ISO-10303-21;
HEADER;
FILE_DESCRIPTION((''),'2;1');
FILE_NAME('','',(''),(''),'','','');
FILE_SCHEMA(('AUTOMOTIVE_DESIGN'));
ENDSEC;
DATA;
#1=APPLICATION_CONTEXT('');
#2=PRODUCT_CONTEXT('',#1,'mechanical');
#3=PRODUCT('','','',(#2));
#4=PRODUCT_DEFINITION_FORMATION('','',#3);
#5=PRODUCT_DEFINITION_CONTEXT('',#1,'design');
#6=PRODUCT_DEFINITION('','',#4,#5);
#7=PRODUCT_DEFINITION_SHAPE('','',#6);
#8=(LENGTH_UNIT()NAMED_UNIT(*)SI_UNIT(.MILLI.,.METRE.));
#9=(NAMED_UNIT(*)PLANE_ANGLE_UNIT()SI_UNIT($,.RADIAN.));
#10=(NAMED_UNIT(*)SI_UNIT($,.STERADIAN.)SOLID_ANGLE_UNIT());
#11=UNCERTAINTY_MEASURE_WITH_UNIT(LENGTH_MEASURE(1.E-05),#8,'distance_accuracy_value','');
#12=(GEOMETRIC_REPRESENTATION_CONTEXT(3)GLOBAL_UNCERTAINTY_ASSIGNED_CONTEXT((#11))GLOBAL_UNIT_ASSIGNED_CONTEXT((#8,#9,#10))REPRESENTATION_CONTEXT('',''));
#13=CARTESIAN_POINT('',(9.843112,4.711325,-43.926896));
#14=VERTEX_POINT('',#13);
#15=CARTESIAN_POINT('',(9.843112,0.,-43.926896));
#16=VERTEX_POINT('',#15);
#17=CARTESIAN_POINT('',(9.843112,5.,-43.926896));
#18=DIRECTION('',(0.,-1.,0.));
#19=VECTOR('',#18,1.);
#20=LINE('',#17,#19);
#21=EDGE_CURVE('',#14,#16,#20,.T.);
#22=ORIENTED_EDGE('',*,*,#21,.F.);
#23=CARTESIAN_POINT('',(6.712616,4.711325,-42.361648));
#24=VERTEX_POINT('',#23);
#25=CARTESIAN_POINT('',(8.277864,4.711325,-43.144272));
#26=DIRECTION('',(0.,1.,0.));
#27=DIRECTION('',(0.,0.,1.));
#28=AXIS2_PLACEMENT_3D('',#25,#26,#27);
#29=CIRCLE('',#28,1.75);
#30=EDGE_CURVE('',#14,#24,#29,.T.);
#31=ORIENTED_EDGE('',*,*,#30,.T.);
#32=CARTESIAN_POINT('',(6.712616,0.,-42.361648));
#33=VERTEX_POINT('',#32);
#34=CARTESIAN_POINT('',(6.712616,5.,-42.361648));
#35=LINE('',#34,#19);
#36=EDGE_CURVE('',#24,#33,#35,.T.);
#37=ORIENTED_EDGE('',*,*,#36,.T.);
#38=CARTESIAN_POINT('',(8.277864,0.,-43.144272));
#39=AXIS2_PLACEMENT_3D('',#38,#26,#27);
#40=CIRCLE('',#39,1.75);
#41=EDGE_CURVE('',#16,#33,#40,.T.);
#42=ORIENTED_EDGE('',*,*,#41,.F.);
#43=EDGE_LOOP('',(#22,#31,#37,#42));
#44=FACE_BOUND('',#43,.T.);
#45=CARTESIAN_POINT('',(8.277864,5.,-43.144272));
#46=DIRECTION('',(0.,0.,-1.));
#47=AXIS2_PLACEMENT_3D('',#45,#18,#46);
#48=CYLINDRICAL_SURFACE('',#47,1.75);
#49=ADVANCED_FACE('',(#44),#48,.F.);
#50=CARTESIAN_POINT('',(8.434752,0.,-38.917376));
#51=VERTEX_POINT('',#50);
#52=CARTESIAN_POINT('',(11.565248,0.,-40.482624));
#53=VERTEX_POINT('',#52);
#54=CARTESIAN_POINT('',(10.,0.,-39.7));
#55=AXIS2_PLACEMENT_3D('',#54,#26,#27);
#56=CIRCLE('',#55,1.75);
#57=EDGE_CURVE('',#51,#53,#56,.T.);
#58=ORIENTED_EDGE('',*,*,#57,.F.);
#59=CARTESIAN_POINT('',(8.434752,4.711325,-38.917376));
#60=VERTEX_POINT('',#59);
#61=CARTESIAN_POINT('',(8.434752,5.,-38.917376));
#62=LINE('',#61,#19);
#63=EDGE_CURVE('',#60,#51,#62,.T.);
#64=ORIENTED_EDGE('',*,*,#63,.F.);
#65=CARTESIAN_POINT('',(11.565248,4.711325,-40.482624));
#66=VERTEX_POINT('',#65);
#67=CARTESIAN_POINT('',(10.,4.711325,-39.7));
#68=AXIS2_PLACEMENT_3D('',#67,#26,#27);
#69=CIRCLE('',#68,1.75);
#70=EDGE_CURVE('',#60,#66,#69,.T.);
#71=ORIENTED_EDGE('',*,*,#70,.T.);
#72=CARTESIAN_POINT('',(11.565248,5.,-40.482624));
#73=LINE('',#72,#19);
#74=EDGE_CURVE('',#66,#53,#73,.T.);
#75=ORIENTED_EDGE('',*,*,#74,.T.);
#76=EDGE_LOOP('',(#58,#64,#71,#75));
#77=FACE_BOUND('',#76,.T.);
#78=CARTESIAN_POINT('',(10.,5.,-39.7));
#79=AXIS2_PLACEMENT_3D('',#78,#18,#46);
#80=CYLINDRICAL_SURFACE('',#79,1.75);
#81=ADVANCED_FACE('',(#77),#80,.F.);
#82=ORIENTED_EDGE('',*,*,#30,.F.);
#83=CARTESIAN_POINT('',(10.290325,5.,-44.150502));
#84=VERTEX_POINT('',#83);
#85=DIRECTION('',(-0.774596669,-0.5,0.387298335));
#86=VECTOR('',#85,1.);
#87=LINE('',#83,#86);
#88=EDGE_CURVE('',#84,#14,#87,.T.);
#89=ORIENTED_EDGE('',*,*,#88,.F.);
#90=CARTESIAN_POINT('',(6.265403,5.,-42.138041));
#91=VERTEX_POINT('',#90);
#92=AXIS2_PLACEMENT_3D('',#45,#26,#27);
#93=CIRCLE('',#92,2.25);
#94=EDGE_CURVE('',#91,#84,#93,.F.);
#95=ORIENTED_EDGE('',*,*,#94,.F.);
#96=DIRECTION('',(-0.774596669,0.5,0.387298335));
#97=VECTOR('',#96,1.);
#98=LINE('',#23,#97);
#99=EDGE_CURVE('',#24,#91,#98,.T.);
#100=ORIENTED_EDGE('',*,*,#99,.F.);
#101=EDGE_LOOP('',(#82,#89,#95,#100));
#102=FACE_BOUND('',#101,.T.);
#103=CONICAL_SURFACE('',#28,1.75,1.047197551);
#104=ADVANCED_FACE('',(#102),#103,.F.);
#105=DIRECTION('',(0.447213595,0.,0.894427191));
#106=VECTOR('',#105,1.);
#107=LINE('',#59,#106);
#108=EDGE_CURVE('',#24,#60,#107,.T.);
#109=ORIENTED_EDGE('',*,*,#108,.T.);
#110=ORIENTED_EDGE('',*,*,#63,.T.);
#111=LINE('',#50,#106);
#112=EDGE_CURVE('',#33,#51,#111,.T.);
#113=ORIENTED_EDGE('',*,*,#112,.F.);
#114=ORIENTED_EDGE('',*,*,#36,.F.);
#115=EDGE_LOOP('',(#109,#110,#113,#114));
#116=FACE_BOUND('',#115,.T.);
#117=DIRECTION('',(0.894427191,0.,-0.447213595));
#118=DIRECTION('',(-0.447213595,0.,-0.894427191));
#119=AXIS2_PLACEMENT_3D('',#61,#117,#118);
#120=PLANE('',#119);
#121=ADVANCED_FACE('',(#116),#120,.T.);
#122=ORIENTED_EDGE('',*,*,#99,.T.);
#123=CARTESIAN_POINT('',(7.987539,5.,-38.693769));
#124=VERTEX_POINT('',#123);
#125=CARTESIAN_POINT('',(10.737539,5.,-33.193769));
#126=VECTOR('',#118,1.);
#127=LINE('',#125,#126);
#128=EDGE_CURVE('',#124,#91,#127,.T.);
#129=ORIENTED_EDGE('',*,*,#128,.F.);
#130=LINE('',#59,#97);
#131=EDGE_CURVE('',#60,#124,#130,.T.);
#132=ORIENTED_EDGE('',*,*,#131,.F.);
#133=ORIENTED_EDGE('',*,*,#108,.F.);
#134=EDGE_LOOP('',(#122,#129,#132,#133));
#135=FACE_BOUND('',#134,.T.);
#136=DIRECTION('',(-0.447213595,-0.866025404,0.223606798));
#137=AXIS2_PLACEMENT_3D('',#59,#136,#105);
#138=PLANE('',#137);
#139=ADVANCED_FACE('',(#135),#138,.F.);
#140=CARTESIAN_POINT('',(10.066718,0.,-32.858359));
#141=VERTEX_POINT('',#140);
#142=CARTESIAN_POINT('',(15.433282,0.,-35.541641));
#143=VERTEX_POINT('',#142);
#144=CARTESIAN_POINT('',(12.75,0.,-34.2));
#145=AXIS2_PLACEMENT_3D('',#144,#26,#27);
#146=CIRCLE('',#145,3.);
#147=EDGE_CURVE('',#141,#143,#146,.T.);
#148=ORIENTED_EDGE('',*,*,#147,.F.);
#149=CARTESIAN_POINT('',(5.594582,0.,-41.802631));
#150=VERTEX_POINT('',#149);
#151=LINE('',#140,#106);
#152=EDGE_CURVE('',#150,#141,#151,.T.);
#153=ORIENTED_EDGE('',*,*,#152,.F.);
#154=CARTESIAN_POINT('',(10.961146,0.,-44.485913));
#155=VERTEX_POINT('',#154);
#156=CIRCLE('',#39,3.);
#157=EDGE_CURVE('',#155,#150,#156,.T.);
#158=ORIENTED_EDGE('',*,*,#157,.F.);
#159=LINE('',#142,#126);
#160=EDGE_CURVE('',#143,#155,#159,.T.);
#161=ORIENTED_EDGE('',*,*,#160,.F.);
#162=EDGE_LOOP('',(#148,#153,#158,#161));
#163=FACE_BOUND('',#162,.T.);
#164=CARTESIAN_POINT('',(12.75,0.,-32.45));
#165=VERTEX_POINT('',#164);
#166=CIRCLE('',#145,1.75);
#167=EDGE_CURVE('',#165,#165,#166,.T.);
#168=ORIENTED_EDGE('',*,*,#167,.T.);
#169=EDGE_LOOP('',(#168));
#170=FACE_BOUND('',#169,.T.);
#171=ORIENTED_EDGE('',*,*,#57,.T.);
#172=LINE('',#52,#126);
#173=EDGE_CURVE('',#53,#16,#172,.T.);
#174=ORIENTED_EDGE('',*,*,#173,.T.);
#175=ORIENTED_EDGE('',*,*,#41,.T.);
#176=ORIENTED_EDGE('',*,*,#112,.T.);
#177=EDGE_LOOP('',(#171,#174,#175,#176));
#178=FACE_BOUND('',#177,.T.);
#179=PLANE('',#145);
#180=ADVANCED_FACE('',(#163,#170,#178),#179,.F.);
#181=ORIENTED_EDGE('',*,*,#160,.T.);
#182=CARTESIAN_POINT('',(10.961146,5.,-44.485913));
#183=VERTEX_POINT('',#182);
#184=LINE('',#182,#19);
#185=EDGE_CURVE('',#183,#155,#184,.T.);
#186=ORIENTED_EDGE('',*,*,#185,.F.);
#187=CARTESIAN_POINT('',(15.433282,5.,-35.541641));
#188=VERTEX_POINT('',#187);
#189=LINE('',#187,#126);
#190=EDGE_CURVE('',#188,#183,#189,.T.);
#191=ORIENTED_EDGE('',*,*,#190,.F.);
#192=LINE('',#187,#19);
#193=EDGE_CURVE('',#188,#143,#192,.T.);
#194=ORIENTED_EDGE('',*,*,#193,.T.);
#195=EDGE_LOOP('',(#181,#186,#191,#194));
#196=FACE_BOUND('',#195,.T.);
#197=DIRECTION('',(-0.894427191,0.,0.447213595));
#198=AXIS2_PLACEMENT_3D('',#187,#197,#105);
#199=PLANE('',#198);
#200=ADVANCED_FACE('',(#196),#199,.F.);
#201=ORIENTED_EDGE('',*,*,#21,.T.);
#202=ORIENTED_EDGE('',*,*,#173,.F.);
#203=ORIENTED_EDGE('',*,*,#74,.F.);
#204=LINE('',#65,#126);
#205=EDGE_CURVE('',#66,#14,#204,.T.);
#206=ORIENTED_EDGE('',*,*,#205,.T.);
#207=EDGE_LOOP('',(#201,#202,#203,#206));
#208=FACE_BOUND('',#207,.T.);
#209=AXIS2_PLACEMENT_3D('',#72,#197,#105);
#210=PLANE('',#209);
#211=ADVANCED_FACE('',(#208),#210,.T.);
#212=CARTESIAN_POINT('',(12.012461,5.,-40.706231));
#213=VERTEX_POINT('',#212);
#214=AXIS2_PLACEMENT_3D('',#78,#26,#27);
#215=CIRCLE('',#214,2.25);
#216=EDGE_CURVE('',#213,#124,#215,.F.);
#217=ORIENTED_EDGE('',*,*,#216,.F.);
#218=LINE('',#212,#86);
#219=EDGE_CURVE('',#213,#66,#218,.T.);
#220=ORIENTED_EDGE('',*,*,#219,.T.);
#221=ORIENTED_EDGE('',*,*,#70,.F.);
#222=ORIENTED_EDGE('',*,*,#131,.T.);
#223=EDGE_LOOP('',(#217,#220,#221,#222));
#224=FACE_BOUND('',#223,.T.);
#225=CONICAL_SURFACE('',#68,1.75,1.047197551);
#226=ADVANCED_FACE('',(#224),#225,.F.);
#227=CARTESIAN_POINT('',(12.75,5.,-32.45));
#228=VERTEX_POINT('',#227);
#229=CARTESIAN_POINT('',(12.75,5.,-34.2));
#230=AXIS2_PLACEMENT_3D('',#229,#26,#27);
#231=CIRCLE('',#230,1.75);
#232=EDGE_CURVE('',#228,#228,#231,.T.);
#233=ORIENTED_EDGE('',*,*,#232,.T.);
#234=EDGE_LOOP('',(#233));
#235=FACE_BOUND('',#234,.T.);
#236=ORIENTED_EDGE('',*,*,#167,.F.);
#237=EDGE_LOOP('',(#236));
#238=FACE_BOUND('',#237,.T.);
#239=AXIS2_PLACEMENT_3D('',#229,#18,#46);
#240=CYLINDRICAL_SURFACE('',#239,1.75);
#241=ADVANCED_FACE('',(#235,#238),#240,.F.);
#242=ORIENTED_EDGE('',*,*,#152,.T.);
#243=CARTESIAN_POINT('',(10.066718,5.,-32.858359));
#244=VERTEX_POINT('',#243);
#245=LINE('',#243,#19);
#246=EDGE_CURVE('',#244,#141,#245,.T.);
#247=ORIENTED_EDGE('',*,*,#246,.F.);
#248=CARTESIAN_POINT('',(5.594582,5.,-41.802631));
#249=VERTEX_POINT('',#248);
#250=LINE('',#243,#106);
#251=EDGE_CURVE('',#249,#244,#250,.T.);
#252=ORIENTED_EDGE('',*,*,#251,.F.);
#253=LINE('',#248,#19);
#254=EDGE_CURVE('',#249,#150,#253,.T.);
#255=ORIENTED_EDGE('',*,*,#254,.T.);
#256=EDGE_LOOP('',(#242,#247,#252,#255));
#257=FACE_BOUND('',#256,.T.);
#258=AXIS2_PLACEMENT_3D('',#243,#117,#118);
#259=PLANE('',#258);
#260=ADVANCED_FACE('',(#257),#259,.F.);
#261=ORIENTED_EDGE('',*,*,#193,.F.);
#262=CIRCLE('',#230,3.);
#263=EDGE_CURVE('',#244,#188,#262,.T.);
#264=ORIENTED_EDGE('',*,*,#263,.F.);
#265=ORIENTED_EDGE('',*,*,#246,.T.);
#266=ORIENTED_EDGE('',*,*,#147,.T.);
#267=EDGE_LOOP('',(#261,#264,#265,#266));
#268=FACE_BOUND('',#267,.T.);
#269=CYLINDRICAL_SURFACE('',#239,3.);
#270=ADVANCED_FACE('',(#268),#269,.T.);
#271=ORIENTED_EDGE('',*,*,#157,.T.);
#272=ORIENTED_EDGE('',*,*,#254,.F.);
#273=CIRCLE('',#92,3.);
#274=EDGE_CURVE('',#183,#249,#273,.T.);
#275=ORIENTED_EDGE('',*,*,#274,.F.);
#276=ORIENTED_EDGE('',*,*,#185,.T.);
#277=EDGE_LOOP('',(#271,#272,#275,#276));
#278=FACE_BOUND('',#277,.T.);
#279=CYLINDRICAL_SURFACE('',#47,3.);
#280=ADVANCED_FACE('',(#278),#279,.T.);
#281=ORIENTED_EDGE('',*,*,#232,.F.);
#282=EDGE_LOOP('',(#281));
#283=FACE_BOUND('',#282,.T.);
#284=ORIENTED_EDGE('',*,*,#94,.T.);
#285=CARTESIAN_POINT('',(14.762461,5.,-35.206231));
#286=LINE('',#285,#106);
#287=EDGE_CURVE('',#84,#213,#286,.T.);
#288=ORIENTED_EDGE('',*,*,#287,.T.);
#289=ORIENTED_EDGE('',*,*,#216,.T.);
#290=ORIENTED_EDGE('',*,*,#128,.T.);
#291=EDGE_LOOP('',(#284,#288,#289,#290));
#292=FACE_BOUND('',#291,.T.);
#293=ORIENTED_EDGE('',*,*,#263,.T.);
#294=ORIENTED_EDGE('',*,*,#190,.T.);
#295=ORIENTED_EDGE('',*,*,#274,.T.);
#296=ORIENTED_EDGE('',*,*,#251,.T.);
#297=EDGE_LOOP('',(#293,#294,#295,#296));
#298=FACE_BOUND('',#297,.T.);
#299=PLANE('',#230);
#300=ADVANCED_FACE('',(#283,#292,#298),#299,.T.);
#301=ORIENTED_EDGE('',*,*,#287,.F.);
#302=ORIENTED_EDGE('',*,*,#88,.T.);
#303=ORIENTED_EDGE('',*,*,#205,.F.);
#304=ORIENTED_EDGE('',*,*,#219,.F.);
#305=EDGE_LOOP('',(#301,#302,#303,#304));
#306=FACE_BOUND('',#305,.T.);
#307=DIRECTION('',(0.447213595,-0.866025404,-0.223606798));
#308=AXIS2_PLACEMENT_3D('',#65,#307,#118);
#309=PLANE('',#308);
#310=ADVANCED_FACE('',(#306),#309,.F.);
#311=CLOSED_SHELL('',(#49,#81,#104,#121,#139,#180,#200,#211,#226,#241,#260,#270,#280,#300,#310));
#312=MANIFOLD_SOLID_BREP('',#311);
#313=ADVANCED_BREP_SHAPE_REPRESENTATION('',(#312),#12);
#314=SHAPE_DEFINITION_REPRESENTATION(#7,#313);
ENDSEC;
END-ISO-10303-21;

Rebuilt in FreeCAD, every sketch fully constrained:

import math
import FreeCAD as App
import Part
import Sketcher
Q = App.Units.Quantity


def edges_at(feature, points):
    """Names of the edges that pass closest to the given points."""
    edges = feature.Shape.Edges
    near = lambda p: min(range(len(edges)), key=lambda i: edges[i].distToShape(Part.Vertex(*p))[0])
    return sorted({f"Edge{near(p) + 1}" for p in points})

doc = App.newDocument("Part")
body = doc.addObject("PartDesign::Body", "Body")

# Sketch on XZ plane
sketch1 = body.newObject("Sketcher::SketchObject", "Sketch")
sketch1.AttachmentSupport = (doc.getObject("XZ_Plane"), [""])
sketch1.MapMode = "FlatFace"
sketch1.addGeometry(Part.LineSegment(App.Vector(15.433282, -35.541641, 0), App.Vector(10.961146, -44.485913, 0)), False)
sketch1.addGeometry(Part.ArcOfCircle(Part.Circle(App.Vector(8.277864, -43.144272, 0), App.Vector(0, 0, 1), 3), math.radians(153.434949), math.radians(333.434949)), False)
sketch1.addGeometry(Part.LineSegment(App.Vector(5.594582, -41.802631, 0), App.Vector(10.066718, -32.858359, 0)), False)
sketch1.addGeometry(Part.ArcOfCircle(Part.Circle(App.Vector(12.75, -34.2, 0), App.Vector(0, 0, 1), 3), math.radians(-26.565051), math.radians(153.434949)), False)
sketch1.addGeometry(Part.Circle(App.Vector(12.75, -34.2, 0), App.Vector(0, 0, 1), 1.75), False)
sketch1.addGeometry(Part.LineSegment(App.Vector(9.843112, -43.926896, 0), App.Vector(11.565248, -40.482624, 0)), False)
sketch1.addGeometry(Part.ArcOfCircle(Part.Circle(App.Vector(10, -39.7, 0), App.Vector(0, 0, 1), 1.75), math.radians(-26.565051), math.radians(153.434949)), False)
sketch1.addGeometry(Part.LineSegment(App.Vector(8.434752, -38.917376, 0), App.Vector(6.712616, -42.361648, 0)), False)
sketch1.addGeometry(Part.ArcOfCircle(Part.Circle(App.Vector(8.277864, -43.144272, 0), App.Vector(0, 0, 1), 1.75), math.radians(153.434949), math.radians(333.434949)), False)
sketch1.addConstraint(Sketcher.Constraint("Tangent", 0, 2, 1, 2))
sketch1.addConstraint(Sketcher.Constraint("Tangent", 1, 1, 2, 1))
sketch1.addConstraint(Sketcher.Constraint("Tangent", 2, 2, 3, 2))
sketch1.addConstraint(Sketcher.Constraint("Tangent", 3, 1, 0, 1))
sketch1.addConstraint(Sketcher.Constraint("Tangent", 5, 2, 6, 1))
sketch1.addConstraint(Sketcher.Constraint("Tangent", 6, 2, 7, 1))
sketch1.addConstraint(Sketcher.Constraint("Tangent", 7, 2, 8, 1))
sketch1.addConstraint(Sketcher.Constraint("Tangent", 8, 2, 5, 1))
sketch1.addConstraint(Sketcher.Constraint("Coincident", 4, 3, 3, 3))
sketch1.addConstraint(Sketcher.Constraint("Coincident", 8, 3, 1, 3))
sketch1.addConstraint(Sketcher.Constraint("Equal", 1, 3))
sketch1.addConstraint(Sketcher.Constraint("Equal", 4, 6))
sketch1.addConstraint(Sketcher.Constraint("Equal", 6, 8))
sketch1.addConstraint(Sketcher.Constraint("Parallel", 2, 5))
sketch1.addConstraint(Sketcher.Constraint("Radius", 1, Q("3 mm")))
sketch1.addConstraint(Sketcher.Constraint("Diameter", 4, Q("3.5 mm")))
sketch1.addConstraint(Sketcher.Constraint("Distance", 0, Q("10 mm")))
sketch1.addConstraint(Sketcher.Constraint("DistanceX", -1, 1, 6, 3, Q("10 mm")))
sketch1.addConstraint(Sketcher.Constraint("DistanceY", 3, 3, -1, 1, Q("34.2 mm")))
sketch1.addConstraint(Sketcher.Constraint("DistanceY", 6, 3, -1, 1, Q("39.7 mm")))
sketch1.addConstraint(Sketcher.Constraint("DistanceX", -1, 1, 3, 3, Q("12.75 mm")))
pad1 = body.newObject("PartDesign::Pad", "Pad")
pad1.Profile = sketch1
pad1.Length = 5
pad1.Reversed = True
doc.recompute()

chamfer = body.newObject("PartDesign::Chamfer", "Chamfer")
chamfer.Base = (pad1, edges_at(pad1, [
    (10.783, 5, -38.135),
    (10.704, 5, -42.205),
    (7.495, 5, -44.71),
    (7.574, 5, -40.64),
]))
chamfer.ChamferType = "Two distances"
chamfer.Size = 0.5
chamfer.Size2 = 0.288675
chamfer.FlipDirection = True

doc.recompute()
